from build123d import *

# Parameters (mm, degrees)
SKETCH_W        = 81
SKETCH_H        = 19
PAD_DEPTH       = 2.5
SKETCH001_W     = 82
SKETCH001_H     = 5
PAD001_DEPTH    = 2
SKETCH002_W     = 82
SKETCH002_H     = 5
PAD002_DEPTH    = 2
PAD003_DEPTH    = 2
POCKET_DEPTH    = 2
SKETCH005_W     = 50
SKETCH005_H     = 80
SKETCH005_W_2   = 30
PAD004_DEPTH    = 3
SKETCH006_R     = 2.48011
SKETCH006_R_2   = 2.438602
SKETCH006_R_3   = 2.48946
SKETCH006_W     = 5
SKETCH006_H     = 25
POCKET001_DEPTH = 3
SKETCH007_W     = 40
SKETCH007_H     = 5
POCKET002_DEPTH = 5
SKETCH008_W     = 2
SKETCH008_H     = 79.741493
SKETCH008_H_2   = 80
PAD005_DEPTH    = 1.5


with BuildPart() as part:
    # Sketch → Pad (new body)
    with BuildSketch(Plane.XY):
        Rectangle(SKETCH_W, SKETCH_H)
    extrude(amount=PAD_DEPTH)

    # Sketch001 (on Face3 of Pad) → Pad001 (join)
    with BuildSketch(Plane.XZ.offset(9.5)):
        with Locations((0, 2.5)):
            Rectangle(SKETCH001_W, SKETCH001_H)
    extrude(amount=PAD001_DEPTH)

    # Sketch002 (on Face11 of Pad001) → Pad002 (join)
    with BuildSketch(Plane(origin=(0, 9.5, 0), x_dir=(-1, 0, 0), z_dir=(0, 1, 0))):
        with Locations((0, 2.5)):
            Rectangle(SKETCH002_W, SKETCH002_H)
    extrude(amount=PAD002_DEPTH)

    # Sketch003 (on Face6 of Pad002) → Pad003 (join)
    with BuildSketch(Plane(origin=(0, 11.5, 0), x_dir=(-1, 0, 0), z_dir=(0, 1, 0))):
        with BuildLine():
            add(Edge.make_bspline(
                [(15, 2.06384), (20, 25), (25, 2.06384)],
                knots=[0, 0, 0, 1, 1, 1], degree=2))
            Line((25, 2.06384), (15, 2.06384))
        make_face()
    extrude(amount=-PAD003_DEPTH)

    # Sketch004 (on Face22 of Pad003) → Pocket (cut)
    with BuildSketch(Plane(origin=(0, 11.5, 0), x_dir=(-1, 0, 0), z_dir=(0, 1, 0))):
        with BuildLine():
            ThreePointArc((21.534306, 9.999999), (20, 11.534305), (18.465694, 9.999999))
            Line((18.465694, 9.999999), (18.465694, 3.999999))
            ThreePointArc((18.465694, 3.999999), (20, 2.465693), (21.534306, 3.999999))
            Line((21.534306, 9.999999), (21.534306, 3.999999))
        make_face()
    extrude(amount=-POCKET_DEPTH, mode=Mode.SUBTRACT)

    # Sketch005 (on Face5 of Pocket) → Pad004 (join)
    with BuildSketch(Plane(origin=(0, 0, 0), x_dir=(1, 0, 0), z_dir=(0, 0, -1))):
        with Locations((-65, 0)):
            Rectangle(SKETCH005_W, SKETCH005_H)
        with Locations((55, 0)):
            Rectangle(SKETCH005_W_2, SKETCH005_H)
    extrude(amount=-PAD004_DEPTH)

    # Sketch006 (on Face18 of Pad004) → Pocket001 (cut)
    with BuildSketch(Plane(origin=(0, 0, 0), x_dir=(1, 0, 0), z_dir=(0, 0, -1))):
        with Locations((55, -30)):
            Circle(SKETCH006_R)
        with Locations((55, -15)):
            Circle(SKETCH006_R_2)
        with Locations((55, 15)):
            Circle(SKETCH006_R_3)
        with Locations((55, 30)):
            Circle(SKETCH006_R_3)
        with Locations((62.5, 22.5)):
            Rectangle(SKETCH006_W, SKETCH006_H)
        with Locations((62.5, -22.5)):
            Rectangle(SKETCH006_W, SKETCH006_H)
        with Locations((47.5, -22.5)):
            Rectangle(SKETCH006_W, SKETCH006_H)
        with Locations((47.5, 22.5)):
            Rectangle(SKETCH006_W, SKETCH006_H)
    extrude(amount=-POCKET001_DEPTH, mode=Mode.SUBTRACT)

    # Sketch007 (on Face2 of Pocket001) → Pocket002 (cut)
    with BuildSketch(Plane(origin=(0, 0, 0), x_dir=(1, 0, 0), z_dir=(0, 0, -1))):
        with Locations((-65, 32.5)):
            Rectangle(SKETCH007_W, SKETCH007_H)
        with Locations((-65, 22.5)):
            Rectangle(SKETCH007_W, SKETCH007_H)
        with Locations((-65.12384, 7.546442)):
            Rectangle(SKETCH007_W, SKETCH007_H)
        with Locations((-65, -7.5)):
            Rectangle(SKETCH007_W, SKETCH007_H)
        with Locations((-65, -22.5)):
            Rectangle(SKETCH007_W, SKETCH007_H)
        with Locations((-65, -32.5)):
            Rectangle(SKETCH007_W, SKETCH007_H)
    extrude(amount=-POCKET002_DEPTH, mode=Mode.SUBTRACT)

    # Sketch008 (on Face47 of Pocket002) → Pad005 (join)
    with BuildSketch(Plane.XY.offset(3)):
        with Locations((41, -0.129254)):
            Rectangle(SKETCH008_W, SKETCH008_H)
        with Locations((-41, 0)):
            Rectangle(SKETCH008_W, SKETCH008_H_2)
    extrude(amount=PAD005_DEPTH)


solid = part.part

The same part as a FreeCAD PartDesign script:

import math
import FreeCAD as App
import Part
import Sketcher

V = App.Vector


def add_polygon(sketch, points):
    """Adds a closed chain of lines whose ends are joined by coincident constraints."""
    first, n = sketch.GeometryCount, len(points)
    for a, b in zip(points, points[1:] + points[:1]):
        sketch.addGeometry(Part.LineSegment(App.Vector(*a, 0), App.Vector(*b, 0)), False)
    for i in range(n):
        sketch.addConstraint(Sketcher.Constraint("Coincident", first + i, 2, first + (i + 1) % n, 1))

doc = App.newDocument("Part")
params = doc.addObject("Spreadsheet::Sheet", "Params")
for row, (alias, value) in enumerate([
    ("sketch1_width", "81 mm"),
    ("sketch1_height", "19 mm"),
    ("pad1_length", "2.5 mm"),
    ("sketch2_width", "82 mm"),
    ("sketch2_height", "5 mm"),
    ("pad2_length", "2 mm"),
    ("sketch3_width", "82 mm"),
    ("sketch3_height", "5 mm"),
    ("pad3_length", "2 mm"),
    ("pad4_length", "2 mm"),
    ("sketch5_height", "6 mm"),
    ("pocket1_length", "2 mm"),
    ("sketch6_width", "50 mm"),
    ("sketch6_width2", "30 mm"),
    ("sketch6_height", "80 mm"),
    ("pad5_length", "3 mm"),
    ("sketch7_width", "5 mm"),
    ("sketch7_height", "25 mm"),
    ("pocket2_length", "3 mm"),
    ("sketch8_width", "40 mm"),
    ("sketch8_height", "5 mm"),
    ("pocket3_length", "5 mm"),
    ("sketch9_width", "2 mm"),
    ("sketch9_height", "80 mm"),
    ("pad6_length", "1.5 mm"),
], start=1):
    params.set(f"A{row}", alias)
    params.set(f"B{row}", "=" + value)
    params.setAlias(f"B{row}", alias)

body = doc.addObject("PartDesign::Body", "Body")

sketch1 = doc.addObject("Sketcher::SketchObject", "Sketch")
body.addObject(sketch1)
sketch1.AttachmentSupport = (doc.XY_Plane, [""])
sketch1.MapMode = "FlatFace"
add_polygon(sketch1, [(-40.5, 9.5), (-40.5, -9.5), (40.5, -9.5), (40.5, 9.5)])
sketch1.addConstraint(Sketcher.Constraint("Vertical", 0))
sketch1.addConstraint(Sketcher.Constraint("Horizontal", 1))
sketch1.addConstraint(Sketcher.Constraint("Vertical", 2))
sketch1.addConstraint(Sketcher.Constraint("Horizontal", 3))
sketch1.addConstraint(Sketcher.Constraint("Symmetric", 0, 2, 2, 2, -1, 1))
sketch1.addConstraint(Sketcher.Constraint("DistanceX", 1, 1, 1, 2, 81.0))
sketch1.addConstraint(Sketcher.Constraint("DistanceY", 0, 2, 0, 1, 19.0))
sketch1.setExpression("Constraints[9]", "Params.sketch1_width")
sketch1.setExpression("Constraints[10]", "Params.sketch1_height")
pad1 = doc.addObject("PartDesign::Pad", "Pad")
body.addObject(pad1)
pad1.Profile = sketch1
pad1.setExpression("Length", "Params.pad1_length")

sketch2 = doc.addObject("Sketcher::SketchObject", "Sketch001")
body.addObject(sketch2)
sketch2.AttachmentSupport = (doc.XZ_Plane, [""])
sketch2.MapMode = "FlatFace"
sketch2.AttachmentOffset = App.Placement(V(0, 0, 9.5), App.Rotation())
add_polygon(sketch2, [(-41, 5), (-41, 0), (41, 0), (41, 5)])
sketch2.addConstraint(Sketcher.Constraint("Vertical", 0))
sketch2.addConstraint(Sketcher.Constraint("Horizontal", 1))
sketch2.addConstraint(Sketcher.Constraint("Vertical", 2))
sketch2.addConstraint(Sketcher.Constraint("Horizontal", 3))
sketch2.addConstraint(Sketcher.Constraint("Symmetric", 0, 2, 1, 2, -1, 1))
sketch2.addConstraint(Sketcher.Constraint("DistanceX", 1, 1, 1, 2, 82.0))
sketch2.addConstraint(Sketcher.Constraint("DistanceY", 0, 2, 0, 1, 5.0))
sketch2.setExpression("Constraints[9]", "Params.sketch2_width")
sketch2.setExpression("Constraints[10]", "Params.sketch2_height")
pad2 = doc.addObject("PartDesign::Pad", "Pad001")
body.addObject(pad2)
pad2.Profile = sketch2
pad2.setExpression("Length", "Params.pad2_length")

sketch3 = doc.addObject("Sketcher::SketchObject", "Sketch002")
body.addObject(sketch3)
sketch3.AttachmentSupport = (doc.XZ_Plane, [""])
sketch3.MapMode = "FlatFace"
sketch3.AttachmentOffset = App.Placement(V(0, 0, -9.5), App.Rotation())
add_polygon(sketch3, [(41, 5), (41, 0), (-41, 0), (-41, 5)])
sketch3.addConstraint(Sketcher.Constraint("Vertical", 0))
sketch3.addConstraint(Sketcher.Constraint("Horizontal", 1))
sketch3.addConstraint(Sketcher.Constraint("Vertical", 2))
sketch3.addConstraint(Sketcher.Constraint("Horizontal", 3))
sketch3.addConstraint(Sketcher.Constraint("Symmetric", 0, 2, 1, 2, -1, 1))
sketch3.addConstraint(Sketcher.Constraint("DistanceX", 1, 2, 1, 1, 82.0))
sketch3.addConstraint(Sketcher.Constraint("DistanceY", 0, 2, 0, 1, 5.0))
sketch3.setExpression("Constraints[9]", "Params.sketch3_width")
sketch3.setExpression("Constraints[10]", "Params.sketch3_height")
pad3 = doc.addObject("PartDesign::Pad", "Pad002")
body.addObject(pad3)
pad3.Profile = sketch3
pad3.setExpression("Length", "Params.pad3_length")
pad3.Reversed = True

sketch4 = doc.addObject("Sketcher::SketchObject", "Sketch003")
body.addObject(sketch4)
sketch4.AttachmentSupport = (doc.XZ_Plane, [""])
sketch4.MapMode = "FlatFace"
sketch4.AttachmentOffset = App.Placement(V(0, 0, -11.5), App.Rotation())
sketch4.addGeometry(Part.BSplineCurve([V(-15, 2.06384, 0), V(-20, 25, 0), V(-25, 2.06384, 0)], [3, 3], [0, 1], False, 2, [1, 1, 1], False), False)
sketch4.addGeometry(Part.LineSegment(V(-15, 2.06384, 0), V(-25, 2.06384, 0)), False)
sketch4.addConstraint(Sketcher.Constraint("Block", 0))
sketch4.addConstraint(Sketcher.Constraint("Coincident", 0, 1, 1, 1))
sketch4.addConstraint(Sketcher.Constraint("Coincident", 1, 2, 0, 2))
pad4 = doc.addObject("PartDesign::Pad", "Pad003")
body.addObject(pad4)
pad4.Profile = sketch4
pad4.setExpression("Length", "Params.pad4_length")

sketch5 = doc.addObject("Sketcher::SketchObject", "Sketch004")
body.addObject(sketch5)
sketch5.AttachmentSupport = (doc.XZ_Plane, [""])
sketch5.MapMode = "FlatFace"
sketch5.AttachmentOffset = App.Placement(V(0, 0, -11.5), App.Rotation())
sketch5.addGeometry(Part.ArcOfCircle(Part.Circle(V(-20, 9.999999, 0), V(0, 0, 1), 1.534306), math.radians(0), math.radians(180)), False)
sketch5.addGeometry(Part.LineSegment(V(-18.465694, 9.999999, 0), V(-18.465694, 3.999999, 0)), False)
sketch5.addGeometry(Part.ArcOfCircle(Part.Circle(V(-20, 3.999999, 0), V(0, 0, 1), 1.534306), math.radians(180), math.radians(360)), False)
sketch5.addGeometry(Part.LineSegment(V(-21.534306, 3.999999, 0), V(-21.534306, 9.999999, 0)), False)
sketch5.addConstraint(Sketcher.Constraint("Tangent", 0, 1, 1, 1))
sketch5.addConstraint(Sketcher.Constraint("Tangent", 1, 2, 2, 2))
sketch5.addConstraint(Sketcher.Constraint("Tangent", 2, 1, 3, 1))
sketch5.addConstraint(Sketcher.Constraint("Tangent", 3, 2, 0, 2))
sketch5.addConstraint(Sketcher.Constraint("Vertical", 1))
sketch5.addConstraint(Sketcher.Constraint("Vertical", 3))
sketch5.addConstraint(Sketcher.Constraint("DistanceY", 1, 2, 1, 1, 6.0))
sketch5.addConstraint(Sketcher.Constraint("DistanceX", 0, 3, -1, 1, 20.0))
sketch5.addConstraint(Sketcher.Constraint("DistanceY", -1, 1, 0, 3, 9.999999))
sketch5.addConstraint(Sketcher.Constraint("Radius", 0, 1.534306))
sketch5.setExpression("Constraints[6]", "Params.sketch5_height")
pocket1 = doc.addObject("PartDesign::Pocket", "Pocket")
body.addObject(pocket1)
pocket1.Profile = sketch5
pocket1.setExpression("Length", "Params.pocket1_length")
pocket1.Reversed = True

sketch6 = doc.addObject("Sketcher::SketchObject", "Sketch005")
body.addObject(sketch6)
sketch6.AttachmentSupport = (doc.XY_Plane, [""])
sketch6.MapMode = "FlatFace"
add_polygon(sketch6, [(-90, -40), (-90, 40), (-40, 40), (-40, -40)])
add_polygon(sketch6, [(40, -40), (40, 40), (70, 40), (70, -40)])
sketch6.addConstraint(Sketcher.Constraint("Vertical", 0))
sketch6.addConstraint(Sketcher.Constraint("Horizontal", 1))
sketch6.addConstraint(Sketcher.Constraint("Vertical", 2))
sketch6.addConstraint(Sketcher.Constraint("Horizontal", 3))
sketch6.addConstraint(Sketcher.Constraint("Vertical", 4))
sketch6.addConstraint(Sketcher.Constraint("Horizontal", 5))
sketch6.addConstraint(Sketcher.Constraint("Vertical", 6))
sketch6.addConstraint(Sketcher.Constraint("Horizontal", 7))
sketch6.addConstraint(Sketcher.Constraint("Symmetric", 2, 2, 4, 2, -1, 1))
sketch6.addConstraint(Sketcher.Constraint("Horizontal", 1, 2, 4, 2))
sketch6.addConstraint(Sketcher.Constraint("Horizontal", 3, 2, 6, 2))
sketch6.addConstraint(Sketcher.Constraint("DistanceX", 1, 1, 1, 2, 50.0))
sketch6.addConstraint(Sketcher.Constraint("DistanceX", 5, 1, 5, 2, 30.0))
sketch6.addConstraint(Sketcher.Constraint("DistanceY", 0, 1, 0, 2, 80.0))
sketch6.addConstraint(Sketcher.Constraint("DistanceX", 0, 2, -1, 1, 90.0))
sketch6.setExpression("Constraints[19]", "Params.sketch6_width")
sketch6.setExpression("Constraints[20]", "Params.sketch6_width2")
sketch6.setExpression("Constraints[21]", "Params.sketch6_height")
pad5 = doc.addObject("PartDesign::Pad", "Pad004")
body.addObject(pad5)
pad5.Profile = sketch6
pad5.setExpression("Length", "Params.pad5_length")

sketch7 = doc.addObject("Sketcher::SketchObject", "Sketch006")
body.addObject(sketch7)
sketch7.AttachmentSupport = (doc.XY_Plane, [""])
sketch7.MapMode = "FlatFace"
sketch7.addGeometry(Part.Circle(V(55, 30, 0), V(0, 0, 1), 2.48011), False)
sketch7.addGeometry(Part.Circle(V(55, 15, 0), V(0, 0, 1), 2.438602), False)
sketch7.addGeometry(Part.Circle(V(55, -15, 0), V(0, 0, 1), 2.48946), False)
sketch7.addGeometry(Part.Circle(V(55, -30, 0), V(0, 0, 1), 2.48946), False)
add_polygon(sketch7, [(60, -35), (60, -10), (65, -10), (65, -35)])
add_polygon(sketch7, [(60, 10), (60, 35), (65, 35), (65, 10)])
add_polygon(sketch7, [(45, 10), (45, 35), (50, 35), (50, 10)])
add_polygon(sketch7, [(45, -35), (45, -10), (50, -10), (50, -35)])
sketch7.addConstraint(Sketcher.Constraint("Vertical", 4))
sketch7.addConstraint(Sketcher.Constraint("Horizontal", 5))
sketch7.addConstraint(Sketcher.Constraint("Vertical", 6))
sketch7.addConstraint(Sketcher.Constraint("Horizontal", 7))
sketch7.addConstraint(Sketcher.Constraint("Vertical", 8))
sketch7.addConstraint(Sketcher.Constraint("Horizontal", 9))
sketch7.addConstraint(Sketcher.Constraint("Vertical", 10))
sketch7.addConstraint(Sketcher.Constraint("Horizontal", 11))
sketch7.addConstraint(Sketcher.Constraint("Vertical", 12))
sketch7.addConstraint(Sketcher.Constraint("Horizontal", 13))
sketch7.addConstraint(Sketcher.Constraint("Vertical", 14))
sketch7.addConstraint(Sketcher.Constraint("Horizontal", 15))
sketch7.addConstraint(Sketcher.Constraint("Vertical", 16))
sketch7.addConstraint(Sketcher.Constraint("Horizontal", 17))
sketch7.addConstraint(Sketcher.Constraint("Vertical", 18))
sketch7.addConstraint(Sketcher.Constraint("Horizontal", 19))
sketch7.addConstraint(Sketcher.Constraint("Equal", 2, 3))
sketch7.addConstraint(Sketcher.Constraint("Symmetric", 1, 3, 2, 3, -1))
sketch7.addConstraint(Sketcher.Constraint("Symmetric", 0, 3, 3, 3, -1))
sketch7.addConstraint(Sketcher.Constraint("Symmetric", 7, 2, 8, 2, -1))
sketch7.addConstraint(Sketcher.Constraint("Symmetric", 5, 2, 10, 2, -1))
sketch7.addConstraint(Sketcher.Constraint("Symmetric", 15, 2, 16, 2, -1))
sketch7.addConstraint(Sketcher.Constraint("Symmetric", 13, 2, 18, 2, -1))
sketch7.addConstraint(Sketcher.Constraint("Horizontal", 9, 2, 12, 2))
sketch7.addConstraint(Sketcher.Constraint("Horizontal", 11, 2, 14, 2))
sketch7.addConstraint(Sketcher.Constraint("Vertical", 0, 3, 1, 3))
sketch7.addConstraint(Sketcher.Constraint("Equal", 11, 13))
sketch7.addConstraint(Sketcher.Constraint("DistanceX", 5, 1, 5, 2, 5.0))
sketch7.addConstraint(Sketcher.Constraint("DistanceY", 4, 1, 4, 2, 25.0))
sketch7.addConstraint(Sketcher.Constraint("DistanceX", -1, 1, 0, 3, 55.0))
sketch7.addConstraint(Sketcher.Constraint("DistanceY", -1, 1, 0, 3, 30.0))
sketch7.addConstraint(Sketcher.Constraint("DistanceY", -1, 1, 1, 3, 15.0))
sketch7.addConstraint(Sketcher.Constraint("DistanceX", -1, 1, 4, 2, 60.0))
sketch7.addConstraint(Sketcher.Constraint("DistanceY", 4, 2, -1, 1, 10.0))
sketch7.addConstraint(Sketcher.Constraint("DistanceX", -1, 1, 12, 2, 45.0))
sketch7.addConstraint(Sketcher.Constraint("Diameter", 0, 4.96022))
sketch7.addConstraint(Sketcher.Constraint("Diameter", 2, 4.97892))
sketch7.addConstraint(Sketcher.Constraint("Diameter", 1, 4.877204))
sketch7.setExpression("Constraints[43]", "Params.sketch7_width")
sketch7.setExpression("Constraints[44]", "Params.sketch7_height")
pocket2 = doc.addObject("PartDesign::Pocket", "Pocket001")
body.addObject(pocket2)
pocket2.Profile = sketch7
pocket2.setExpression("Length", "Params.pocket2_length")
pocket2.Reversed = True

sketch8 = doc.addObject("Sketcher::SketchObject", "Sketch007")
body.addObject(sketch8)
sketch8.AttachmentSupport = (doc.XY_Plane, [""])
sketch8.MapMode = "FlatFace"
add_polygon(sketch8, [(-85, -35), (-85, -30), (-45, -30), (-45, -35)])
add_polygon(sketch8, [(-85, -25), (-85, -20), (-45, -20), (-45, -25)])
add_polygon(sketch8, [(-85.12384, -10.046442), (-85.12384, -5.046442), (-45.12384, -5.046442), (-45.12384, -10.046442)])
add_polygon(sketch8, [(-85, 5), (-85, 10), (-45, 10), (-45, 5)])
add_polygon(sketch8, [(-85, 20), (-85, 25), (-45, 25), (-45, 20)])
add_polygon(sketch8, [(-85, 30), (-85, 35), (-45, 35), (-45, 30)])
sketch8.addConstraint(Sketcher.Constraint("Vertical", 0))
sketch8.addConstraint(Sketcher.Constraint("Horizontal", 1))
sketch8.addConstraint(Sketcher.Constraint("Vertical", 2))
sketch8.addConstraint(Sketcher.Constraint("Horizontal", 3))
sketch8.addConstraint(Sketcher.Constraint("Vertical", 4))
sketch8.addConstraint(Sketcher.Constraint("Horizontal", 5))
sketch8.addConstraint(Sketcher.Constraint("Vertical", 6))
sketch8.addConstraint(Sketcher.Constraint("Horizontal", 7))
sketch8.addConstraint(Sketcher.Constraint("Vertical", 8))
sketch8.addConstraint(Sketcher.Constraint("Horizontal", 9))
sketch8.addConstraint(Sketcher.Constraint("Vertical", 10))
sketch8.addConstraint(Sketcher.Constraint("Horizontal", 11))
sketch8.addConstraint(Sketcher.Constraint("Vertical", 12))
sketch8.addConstraint(Sketcher.Constraint("Horizontal", 13))
sketch8.addConstraint(Sketcher.Constraint("Vertical", 14))
sketch8.addConstraint(Sketcher.Constraint("Horizontal", 15))
sketch8.addConstraint(Sketcher.Constraint("Vertical", 16))
sketch8.addConstraint(Sketcher.Constraint("Horizontal", 17))
sketch8.addConstraint(Sketcher.Constraint("Vertical", 18))
sketch8.addConstraint(Sketcher.Constraint("Horizontal", 19))
sketch8.addConstraint(Sketcher.Constraint("Vertical", 20))
sketch8.addConstraint(Sketcher.Constraint("Horizontal", 21))
sketch8.addConstraint(Sketcher.Constraint("Vertical", 22))
sketch8.addConstraint(Sketcher.Constraint("Horizontal", 23))
sketch8.addConstraint(Sketcher.Constraint("Symmetric", 7, 2, 16, 2, -1))
sketch8.addConstraint(Sketcher.Constraint("Symmetric", 5, 2, 18, 2, -1))
sketch8.addConstraint(Sketcher.Constraint("Symmetric", 3, 2, 20, 2, -1))
sketch8.addConstraint(Sketcher.Constraint("Symmetric", 1, 2, 22, 2, -1))
sketch8.addConstraint(Sketcher.Constraint("Vertical", 3, 2, 4, 2))
sketch8.addConstraint(Sketcher.Constraint("Vertical", 2, 2, 5, 2))
sketch8.addConstraint(Sketcher.Constraint("Vertical", 7, 2, 12, 2))
sketch8.addConstraint(Sketcher.Constraint("Vertical", 6, 2, 13, 2))
sketch8.addConstraint(Sketcher.Constraint("Equal", 7, 9))
sketch8.addConstraint(Sketcher.Constraint("Equal", 2, 4))
sketch8.addConstraint(Sketcher.Constraint("Equal", 6, 8))
sketch8.addConstraint(Sketcher.Constraint("Equal", 10, 12))
sketch8.addConstraint(Sketcher.Constraint("DistanceX", 1, 1, 1, 2, 40.0))
sketch8.addConstraint(Sketcher.Constraint("DistanceY", 0, 1, 0, 2, 5.0))
sketch8.addConstraint(Sketcher.Constraint("DistanceX", 0, 2, -1, 1, 85.0))
sketch8.addConstraint(Sketcher.Constraint("DistanceY", 0, 2, -1, 1, 30.0))
sketch8.addConstraint(Sketcher.Constraint("DistanceY", 4, 2, -1, 1, 20.0))
sketch8.addConstraint(Sketcher.Constraint("DistanceY", -1, 1, 12, 2, 10.0))
sketch8.addConstraint(Sketcher.Constraint("DistanceX", 8, 2, -1, 1, 85.12384))
sketch8.addConstraint(Sketcher.Constraint("DistanceY", 4, 2, 8, 2, 14.953558))
sketch8.setExpression("Constraints[60]", "Params.sketch8_width")
sketch8.setExpression("Constraints[61]", "Params.sketch8_height")
pocket3 = doc.addObject("PartDesign::Pocket", "Pocket002")
body.addObject(pocket3)
pocket3.Profile = sketch8
pocket3.setExpression("Length", "Params.pocket3_length")
pocket3.Reversed = True

sketch9 = doc.addObject("Sketcher::SketchObject", "Sketch008")
body.addObject(sketch9)
sketch9.AttachmentSupport = (doc.XY_Plane, [""])
sketch9.MapMode = "FlatFace"
sketch9.AttachmentOffset = App.Placement(V(0, 0, 3), App.Rotation())
add_polygon(sketch9, [(40, 39.741492), (40, -40), (42, -40), (42, 39.741492)])
add_polygon(sketch9, [(-42, 40), (-42, -40), (-40, -40), (-40, 40)])
sketch9.addConstraint(Sketcher.Constraint("Vertical", 0))
sketch9.addConstraint(Sketcher.Constraint("Horizontal", 1))
sketch9.addConstraint(Sketcher.Constraint("Vertical", 2))
sketch9.addConstraint(Sketcher.Constraint("Horizontal", 3))
sketch9.addConstraint(Sketcher.Constraint("Vertical", 4))
sketch9.addConstraint(Sketcher.Constraint("Horizontal", 5))
sketch9.addConstraint(Sketcher.Constraint("Vertical", 6))
sketch9.addConstraint(Sketcher.Constraint("Horizontal", 7))
sketch9.addConstraint(Sketcher.Constraint("Symmetric", 0, 2, 6, 2, -1, 1))
sketch9.addConstraint(Sketcher.Constraint("Symmetric", 1, 2, 4, 2, -2))
sketch9.addConstraint(Sketcher.Constraint("DistanceX", 1, 1, 1, 2, 2.0))
sketch9.addConstraint(Sketcher.Constraint("DistanceY", 4, 2, 4, 1, 80.0))
sketch9.addConstraint(Sketcher.Constraint("DistanceX", -1, 1, 0, 2, 40.0))
sketch9.addConstraint(Sketcher.Constraint("DistanceY", 0, 2, 0, 1, 79.741493))
sketch9.setExpression("Constraints[18]", "Params.sketch9_width")
sketch9.setExpression("Constraints[19]", "Params.sketch9_height")
pad6 = doc.addObject("PartDesign::Pad", "Pad005")
body.addObject(pad6)
pad6.Profile = sketch9
pad6.setExpression("Length", "Params.pad6_length")

doc.recompute()
